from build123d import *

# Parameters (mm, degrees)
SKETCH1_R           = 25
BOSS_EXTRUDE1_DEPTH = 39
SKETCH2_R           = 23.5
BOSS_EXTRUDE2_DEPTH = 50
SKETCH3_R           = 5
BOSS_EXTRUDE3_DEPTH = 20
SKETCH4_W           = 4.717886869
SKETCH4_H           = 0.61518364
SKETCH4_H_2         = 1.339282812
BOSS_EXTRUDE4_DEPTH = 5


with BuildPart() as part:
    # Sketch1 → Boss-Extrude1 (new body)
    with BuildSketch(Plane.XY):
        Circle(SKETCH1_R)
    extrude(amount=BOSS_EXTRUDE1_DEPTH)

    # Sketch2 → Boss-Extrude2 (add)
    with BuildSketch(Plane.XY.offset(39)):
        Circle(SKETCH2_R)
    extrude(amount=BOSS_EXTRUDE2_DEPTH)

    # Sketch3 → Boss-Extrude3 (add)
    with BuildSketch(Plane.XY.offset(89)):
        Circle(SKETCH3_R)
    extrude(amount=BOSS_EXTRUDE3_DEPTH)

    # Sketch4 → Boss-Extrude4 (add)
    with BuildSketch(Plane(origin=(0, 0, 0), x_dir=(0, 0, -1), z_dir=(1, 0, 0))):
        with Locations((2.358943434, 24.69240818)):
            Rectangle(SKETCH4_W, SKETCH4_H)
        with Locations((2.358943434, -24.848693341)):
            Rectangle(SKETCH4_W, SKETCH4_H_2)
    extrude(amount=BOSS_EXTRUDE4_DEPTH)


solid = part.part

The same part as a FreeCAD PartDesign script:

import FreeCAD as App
import Part
import Sketcher
from FreeCAD import Vector


def add_polygon(sketch, points):
    """Adds a closed chain of lines whose ends are joined by coincident constraints."""
    first, n = sketch.GeometryCount, len(points)
    for a, b in zip(points, points[1:] + points[:1]):
        sketch.addGeometry(Part.LineSegment(App.Vector(*a, 0), App.Vector(*b, 0)), False)
    for i in range(n):
        sketch.addConstraint(Sketcher.Constraint("Coincident", first + i, 2, first + (i + 1) % n, 1))

doc = App.newDocument("Part")
params = doc.addObject("Spreadsheet::Sheet", "Params")
for row, (alias, value) in enumerate([
    ("sketch1_diameter", "50 mm"),
    ("pad1_length", "39 mm"),
    ("sketch2_diameter", "47 mm"),
    ("pad2_length", "50 mm"),
    ("sketch3_diameter", "10 mm"),
    ("pad3_length", "20 mm"),
    ("pad4_length", "5 mm"),
], start=1):
    params.set(f"A{row}", alias)
    params.set(f"B{row}", "=" + value)
    params.setAlias(f"B{row}", alias)

body = doc.addObject("PartDesign::Body", "Body")

# Sketch on XY plane
sketch1 = body.newObject("Sketcher::SketchObject", "Sketch")
sketch1.AttachmentSupport = (doc.getObject("XY_Plane"), [""])
sketch1.MapMode = "FlatFace"
sketch1.addGeometry(Part.Circle(Vector(0, 0, 0), Vector(0, 0, 1), 25), False)
sketch1.addConstraint(Sketcher.Constraint("Coincident", 0, 3, -1, 1))
sketch1.addConstraint(Sketcher.Constraint("Diameter", 0, 50.0))
sketch1.setExpression("Constraints[1]", "Params.sketch1_diameter")
pad1 = body.newObject("PartDesign::Pad", "Pad")
pad1.Profile = sketch1
pad1.setExpression("Length", "Params.pad1_length")

# Sketch on XY plane
sketch2 = body.newObject("Sketcher::SketchObject", "Sketch001")
sketch2.AttachmentSupport = (doc.getObject("XY_Plane"), [""])
sketch2.MapMode = "FlatFace"
sketch2.AttachmentOffset = App.Placement(Vector(0, 0, 39), App.Rotation())
sketch2.addGeometry(Part.Circle(Vector(0, 0, 0), Vector(0, 0, 1), 24), False)
sketch2.addConstraint(Sketcher.Constraint("Coincident", 0, 3, -1, 1))
sketch2.addConstraint(Sketcher.Constraint("Diameter", 0, 47.0))
sketch2.setExpression("Constraints[1]", "Params.sketch2_diameter")
pad2 = body.newObject("PartDesign::Pad", "Pad001")
pad2.Profile = sketch2
pad2.setExpression("Length", "Params.pad2_length")

# Sketch on XY plane
sketch3 = body.newObject("Sketcher::SketchObject", "Sketch002")
sketch3.AttachmentSupport = (doc.getObject("XY_Plane"), [""])
sketch3.MapMode = "FlatFace"
sketch3.AttachmentOffset = App.Placement(Vector(0, 0, 89), App.Rotation())
sketch3.addGeometry(Part.Circle(Vector(0, 0, 0), Vector(0, 0, 1), 5), False)
sketch3.addConstraint(Sketcher.Constraint("Coincident", 0, 3, -1, 1))
sketch3.addConstraint(Sketcher.Constraint("Diameter", 0, 10.0))
sketch3.setExpression("Constraints[1]", "Params.sketch3_diameter")
pad3 = body.newObject("PartDesign::Pad", "Pad002")
pad3.Profile = sketch3
pad3.setExpression("Length", "Params.pad3_length")

# Sketch on YZ plane
sketch4 = body.newObject("Sketcher::SketchObject", "Sketch003")
sketch4.AttachmentSupport = (doc.getObject("YZ_Plane"), [""])
sketch4.MapMode = "FlatFace"
add_polygon(sketch4, [(25, 0), (24.4, 0), (24.4, -4.7), (25, -4.7)])  # lines 0-3
add_polygon(sketch4, [(-24.2, 0), (-25.5, 0), (-25.5, -4.7), (-24.2, -4.7)])  # lines 4-7
sketch4.addConstraint(Sketcher.Constraint("Horizontal", 0))
sketch4.addConstraint(Sketcher.Constraint("Vertical", 1))
sketch4.addConstraint(Sketcher.Constraint("Horizontal", 2))
sketch4.addConstraint(Sketcher.Constraint("Vertical", 3))
sketch4.addConstraint(Sketcher.Constraint("Horizontal", 4))
sketch4.addConstraint(Sketcher.Constraint("Vertical", 5))
sketch4.addConstraint(Sketcher.Constraint("Horizontal", 6))
sketch4.addConstraint(Sketcher.Constraint("Vertical", 7))
sketch4.addConstraint(Sketcher.Constraint("PointOnObject", 0, 2, -1))
sketch4.addConstraint(Sketcher.Constraint("PointOnObject", 4, 2, -1))
sketch4.addConstraint(Sketcher.Constraint("Horizontal", 2, 2, 5, 2))
sketch4.addConstraint(Sketcher.Constraint("DistanceX", -1, 1, 2, 2, 25.0))
sketch4.addConstraint(Sketcher.Constraint("DistanceX", 0, 2, 0, 1, 0.615184))
sketch4.addConstraint(Sketcher.Constraint("DistanceX", 4, 2, 4, 1, 1.339283))
sketch4.addConstraint(Sketcher.Constraint("DistanceY", 1, 2, 1, 1, 4.717887))
sketch4.addConstraint(Sketcher.Constraint("DistanceX", 6, 2, -1, 1, 24.179052))
pad4 = body.newObject("PartDesign::Pad", "Pad003")
pad4.Profile = sketch4
pad4.setExpression("Length", "Params.pad4_length")

doc.recompute()
